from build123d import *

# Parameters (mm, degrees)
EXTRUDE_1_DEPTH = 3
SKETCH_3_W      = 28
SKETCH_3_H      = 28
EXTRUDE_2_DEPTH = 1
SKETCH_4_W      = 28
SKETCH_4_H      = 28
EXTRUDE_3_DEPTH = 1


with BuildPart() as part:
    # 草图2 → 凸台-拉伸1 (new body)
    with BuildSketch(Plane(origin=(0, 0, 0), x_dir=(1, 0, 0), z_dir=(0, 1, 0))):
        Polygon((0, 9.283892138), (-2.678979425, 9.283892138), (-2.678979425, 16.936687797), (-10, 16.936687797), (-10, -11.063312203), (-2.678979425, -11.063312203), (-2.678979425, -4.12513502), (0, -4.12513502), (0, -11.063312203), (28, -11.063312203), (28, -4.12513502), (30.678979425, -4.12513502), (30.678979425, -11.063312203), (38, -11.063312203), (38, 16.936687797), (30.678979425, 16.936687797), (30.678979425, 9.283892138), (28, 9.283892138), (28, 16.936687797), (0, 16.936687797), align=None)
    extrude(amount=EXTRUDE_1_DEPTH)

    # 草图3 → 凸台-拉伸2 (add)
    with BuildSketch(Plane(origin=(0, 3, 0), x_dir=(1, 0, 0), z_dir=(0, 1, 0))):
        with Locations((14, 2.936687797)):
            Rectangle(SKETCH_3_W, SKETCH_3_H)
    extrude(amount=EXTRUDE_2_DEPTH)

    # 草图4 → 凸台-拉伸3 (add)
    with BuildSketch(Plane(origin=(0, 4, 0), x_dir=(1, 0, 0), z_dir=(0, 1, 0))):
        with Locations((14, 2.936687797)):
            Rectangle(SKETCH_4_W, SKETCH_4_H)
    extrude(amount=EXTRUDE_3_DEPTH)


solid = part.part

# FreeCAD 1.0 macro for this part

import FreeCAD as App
import Part
import Sketcher
from FreeCAD import Vector


def add_polygon(sketch, points):
    """Adds a closed chain of lines whose ends are joined by coincident constraints."""
    first, n = sketch.GeometryCount, len(points)
    for a, b in zip(points, points[1:] + points[:1]):
        sketch.addGeometry(Part.LineSegment(App.Vector(*a, 0), App.Vector(*b, 0)), False)
    for i in range(n):
        sketch.addConstraint(Sketcher.Constraint("Coincident", first + i, 2, first + (i + 1) % n, 1))

doc = App.newDocument("Part")
body = doc.addObject("PartDesign::Body", "Body")

# Sketch on XZ plane
sketch1 = body.newObject("Sketcher::SketchObject", "Sketch")
sketch1.AttachmentSupport = (doc.getObject("XZ_Plane"), [""])
sketch1.MapMode = "FlatFace"
add_polygon(sketch1, [(0, -9.3), (-2.7, -9.3), (-2.7, -16.9), (-10, -16.9), (-10, 11.1), (-2.7, 11.1), (-2.7, 4.1), (0, 4.1), (0, 11.1), (28, 11.1), (28, 4.1), (30.7, 4.1), (30.7, 11.1), (38, 11.1), (38, -16.9), (30.7, -16.9), (30.7, -9.3), (28, -9.3), (28, -16.9), (0, -16.9)])  # lines 0-19
sketch1.addConstraint([
    Sketcher.Constraint("Horizontal", 0),
    Sketcher.Constraint("Vertical", 1),
    Sketcher.Constraint("Horizontal", 2),
    Sketcher.Constraint("Vertical", 3),
    Sketcher.Constraint("Horizontal", 4),
    Sketcher.Constraint("Vertical", 5),
    Sketcher.Constraint("Horizontal", 6),
    Sketcher.Constraint("Vertical", 7),
    Sketcher.Constraint("Horizontal", 8),
    Sketcher.Constraint("Vertical", 9),
    Sketcher.Constraint("Horizontal", 10),
    Sketcher.Constraint("Vertical", 11),
    Sketcher.Constraint("Horizontal", 12),
    Sketcher.Constraint("Vertical", 13),
    Sketcher.Constraint("Horizontal", 14),
    Sketcher.Constraint("Vertical", 15),
    Sketcher.Constraint("Horizontal", 16),
    Sketcher.Constraint("Vertical", 17),
    Sketcher.Constraint("Horizontal", 18),
    Sketcher.Constraint("Vertical", 19),
    Sketcher.Constraint("PointOnObject", 6, 2, -2),
    Sketcher.Constraint("PointOnObject", 18, 2, -2),
    Sketcher.Constraint("Horizontal", 4, 2, 7, 2),
    Sketcher.Constraint("Horizontal", 6, 2, 9, 2),
    Sketcher.Constraint("Horizontal", 8, 2, 11, 2),
    Sketcher.Constraint("Horizontal", 2, 2, 13, 2),
    Sketcher.Constraint("Horizontal", 0, 2, 15, 2),
    Sketcher.Constraint("Horizontal", 14, 2, 17, 2),
    Sketcher.Constraint("Vertical", 1, 2, 4, 2),
    Sketcher.Constraint("Vertical", 11, 2, 14, 2),
    Sketcher.Constraint("Vertical", 9, 2, 16, 2),
    Sketcher.Constraint("Equal", 6, 10),
    Sketcher.Constraint("Equal", 4, 12),
    Sketcher.Constraint("Equal", 18, 3),
    Sketcher.Constraint("DistanceX", 8, 1, 8, 2, 28.0),
    Sketcher.Constraint("DistanceX", 2, 2, -1, 1, 10.0),
    Sketcher.Constraint("DistanceX", 0, 2, 0, 1, 2.678979),
    Sketcher.Constraint("DistanceY", 1, 2, 1, 1, 7.652796),
    Sketcher.Constraint("DistanceY", 5, 2, 5, 1, 6.938177),
    Sketcher.Constraint("DistanceY", 0, 2, -1, 1, 9.283892),
])
pad1 = body.newObject("PartDesign::Pad", "Pad")
pad1.Profile = sketch1
pad1.Length = 3
pad1.Reversed = True

# Sketch on XZ plane
sketch2 = body.newObject("Sketcher::SketchObject", "Sketch001")
sketch2.AttachmentSupport = (doc.getObject("XZ_Plane"), [""])
sketch2.MapMode = "FlatFace"
sketch2.AttachmentOffset = App.Placement(Vector(0, 0, -3), App.Rotation())
add_polygon(sketch2, [(0, -17), (0, 11), (28, 11), (28, -17)])  # lines 0-3
sketch2.addConstraint([
    Sketcher.Constraint("Vertical", 0),
    Sketcher.Constraint("Horizontal", 1),
    Sketcher.Constraint("Vertical", 2),
    Sketcher.Constraint("Horizontal", 3),
    Sketcher.Constraint("PointOnObject", 0, 2, -2),
    Sketcher.Constraint("Equal", 3, 0),
    Sketcher.Constraint("DistanceX", 1, 1, 1, 2, 28.0),
    Sketcher.Constraint("DistanceY", -1, 1, 0, 2, 11.063312),
])
pad2 = body.newObject("PartDesign::Pad", "Pad001")
pad2.Profile = sketch2
pad2.Length = 1
pad2.Reversed = True

# Sketch on XZ plane
sketch3 = body.newObject("Sketcher::SketchObject", "Sketch002")
sketch3.AttachmentSupport = (doc.getObject("XZ_Plane"), [""])
sketch3.MapMode = "FlatFace"
sketch3.AttachmentOffset = App.Placement(Vector(0, 0, -4), App.Rotation())
add_polygon(sketch3, [(0, -17), (0, 11), (28, 11), (28, -17)])  # lines 0-3
sketch3.addConstraint([
    Sketcher.Constraint("Vertical", 0),
    Sketcher.Constraint("Horizontal", 1),
    Sketcher.Constraint("Vertical", 2),
    Sketcher.Constraint("Horizontal", 3),
    Sketcher.Constraint("PointOnObject", 0, 2, -2),
    Sketcher.Constraint("Equal", 3, 0),
    Sketcher.Constraint("DistanceX", 1, 1, 1, 2, 28.0),
    Sketcher.Constraint("DistanceY", -1, 1, 0, 2, 11.063312),
])
pad3 = body.newObject("PartDesign::Pad", "Pad002")
pad3.Profile = sketch3
pad3.Length = 1
pad3.Reversed = True

doc.recompute()
